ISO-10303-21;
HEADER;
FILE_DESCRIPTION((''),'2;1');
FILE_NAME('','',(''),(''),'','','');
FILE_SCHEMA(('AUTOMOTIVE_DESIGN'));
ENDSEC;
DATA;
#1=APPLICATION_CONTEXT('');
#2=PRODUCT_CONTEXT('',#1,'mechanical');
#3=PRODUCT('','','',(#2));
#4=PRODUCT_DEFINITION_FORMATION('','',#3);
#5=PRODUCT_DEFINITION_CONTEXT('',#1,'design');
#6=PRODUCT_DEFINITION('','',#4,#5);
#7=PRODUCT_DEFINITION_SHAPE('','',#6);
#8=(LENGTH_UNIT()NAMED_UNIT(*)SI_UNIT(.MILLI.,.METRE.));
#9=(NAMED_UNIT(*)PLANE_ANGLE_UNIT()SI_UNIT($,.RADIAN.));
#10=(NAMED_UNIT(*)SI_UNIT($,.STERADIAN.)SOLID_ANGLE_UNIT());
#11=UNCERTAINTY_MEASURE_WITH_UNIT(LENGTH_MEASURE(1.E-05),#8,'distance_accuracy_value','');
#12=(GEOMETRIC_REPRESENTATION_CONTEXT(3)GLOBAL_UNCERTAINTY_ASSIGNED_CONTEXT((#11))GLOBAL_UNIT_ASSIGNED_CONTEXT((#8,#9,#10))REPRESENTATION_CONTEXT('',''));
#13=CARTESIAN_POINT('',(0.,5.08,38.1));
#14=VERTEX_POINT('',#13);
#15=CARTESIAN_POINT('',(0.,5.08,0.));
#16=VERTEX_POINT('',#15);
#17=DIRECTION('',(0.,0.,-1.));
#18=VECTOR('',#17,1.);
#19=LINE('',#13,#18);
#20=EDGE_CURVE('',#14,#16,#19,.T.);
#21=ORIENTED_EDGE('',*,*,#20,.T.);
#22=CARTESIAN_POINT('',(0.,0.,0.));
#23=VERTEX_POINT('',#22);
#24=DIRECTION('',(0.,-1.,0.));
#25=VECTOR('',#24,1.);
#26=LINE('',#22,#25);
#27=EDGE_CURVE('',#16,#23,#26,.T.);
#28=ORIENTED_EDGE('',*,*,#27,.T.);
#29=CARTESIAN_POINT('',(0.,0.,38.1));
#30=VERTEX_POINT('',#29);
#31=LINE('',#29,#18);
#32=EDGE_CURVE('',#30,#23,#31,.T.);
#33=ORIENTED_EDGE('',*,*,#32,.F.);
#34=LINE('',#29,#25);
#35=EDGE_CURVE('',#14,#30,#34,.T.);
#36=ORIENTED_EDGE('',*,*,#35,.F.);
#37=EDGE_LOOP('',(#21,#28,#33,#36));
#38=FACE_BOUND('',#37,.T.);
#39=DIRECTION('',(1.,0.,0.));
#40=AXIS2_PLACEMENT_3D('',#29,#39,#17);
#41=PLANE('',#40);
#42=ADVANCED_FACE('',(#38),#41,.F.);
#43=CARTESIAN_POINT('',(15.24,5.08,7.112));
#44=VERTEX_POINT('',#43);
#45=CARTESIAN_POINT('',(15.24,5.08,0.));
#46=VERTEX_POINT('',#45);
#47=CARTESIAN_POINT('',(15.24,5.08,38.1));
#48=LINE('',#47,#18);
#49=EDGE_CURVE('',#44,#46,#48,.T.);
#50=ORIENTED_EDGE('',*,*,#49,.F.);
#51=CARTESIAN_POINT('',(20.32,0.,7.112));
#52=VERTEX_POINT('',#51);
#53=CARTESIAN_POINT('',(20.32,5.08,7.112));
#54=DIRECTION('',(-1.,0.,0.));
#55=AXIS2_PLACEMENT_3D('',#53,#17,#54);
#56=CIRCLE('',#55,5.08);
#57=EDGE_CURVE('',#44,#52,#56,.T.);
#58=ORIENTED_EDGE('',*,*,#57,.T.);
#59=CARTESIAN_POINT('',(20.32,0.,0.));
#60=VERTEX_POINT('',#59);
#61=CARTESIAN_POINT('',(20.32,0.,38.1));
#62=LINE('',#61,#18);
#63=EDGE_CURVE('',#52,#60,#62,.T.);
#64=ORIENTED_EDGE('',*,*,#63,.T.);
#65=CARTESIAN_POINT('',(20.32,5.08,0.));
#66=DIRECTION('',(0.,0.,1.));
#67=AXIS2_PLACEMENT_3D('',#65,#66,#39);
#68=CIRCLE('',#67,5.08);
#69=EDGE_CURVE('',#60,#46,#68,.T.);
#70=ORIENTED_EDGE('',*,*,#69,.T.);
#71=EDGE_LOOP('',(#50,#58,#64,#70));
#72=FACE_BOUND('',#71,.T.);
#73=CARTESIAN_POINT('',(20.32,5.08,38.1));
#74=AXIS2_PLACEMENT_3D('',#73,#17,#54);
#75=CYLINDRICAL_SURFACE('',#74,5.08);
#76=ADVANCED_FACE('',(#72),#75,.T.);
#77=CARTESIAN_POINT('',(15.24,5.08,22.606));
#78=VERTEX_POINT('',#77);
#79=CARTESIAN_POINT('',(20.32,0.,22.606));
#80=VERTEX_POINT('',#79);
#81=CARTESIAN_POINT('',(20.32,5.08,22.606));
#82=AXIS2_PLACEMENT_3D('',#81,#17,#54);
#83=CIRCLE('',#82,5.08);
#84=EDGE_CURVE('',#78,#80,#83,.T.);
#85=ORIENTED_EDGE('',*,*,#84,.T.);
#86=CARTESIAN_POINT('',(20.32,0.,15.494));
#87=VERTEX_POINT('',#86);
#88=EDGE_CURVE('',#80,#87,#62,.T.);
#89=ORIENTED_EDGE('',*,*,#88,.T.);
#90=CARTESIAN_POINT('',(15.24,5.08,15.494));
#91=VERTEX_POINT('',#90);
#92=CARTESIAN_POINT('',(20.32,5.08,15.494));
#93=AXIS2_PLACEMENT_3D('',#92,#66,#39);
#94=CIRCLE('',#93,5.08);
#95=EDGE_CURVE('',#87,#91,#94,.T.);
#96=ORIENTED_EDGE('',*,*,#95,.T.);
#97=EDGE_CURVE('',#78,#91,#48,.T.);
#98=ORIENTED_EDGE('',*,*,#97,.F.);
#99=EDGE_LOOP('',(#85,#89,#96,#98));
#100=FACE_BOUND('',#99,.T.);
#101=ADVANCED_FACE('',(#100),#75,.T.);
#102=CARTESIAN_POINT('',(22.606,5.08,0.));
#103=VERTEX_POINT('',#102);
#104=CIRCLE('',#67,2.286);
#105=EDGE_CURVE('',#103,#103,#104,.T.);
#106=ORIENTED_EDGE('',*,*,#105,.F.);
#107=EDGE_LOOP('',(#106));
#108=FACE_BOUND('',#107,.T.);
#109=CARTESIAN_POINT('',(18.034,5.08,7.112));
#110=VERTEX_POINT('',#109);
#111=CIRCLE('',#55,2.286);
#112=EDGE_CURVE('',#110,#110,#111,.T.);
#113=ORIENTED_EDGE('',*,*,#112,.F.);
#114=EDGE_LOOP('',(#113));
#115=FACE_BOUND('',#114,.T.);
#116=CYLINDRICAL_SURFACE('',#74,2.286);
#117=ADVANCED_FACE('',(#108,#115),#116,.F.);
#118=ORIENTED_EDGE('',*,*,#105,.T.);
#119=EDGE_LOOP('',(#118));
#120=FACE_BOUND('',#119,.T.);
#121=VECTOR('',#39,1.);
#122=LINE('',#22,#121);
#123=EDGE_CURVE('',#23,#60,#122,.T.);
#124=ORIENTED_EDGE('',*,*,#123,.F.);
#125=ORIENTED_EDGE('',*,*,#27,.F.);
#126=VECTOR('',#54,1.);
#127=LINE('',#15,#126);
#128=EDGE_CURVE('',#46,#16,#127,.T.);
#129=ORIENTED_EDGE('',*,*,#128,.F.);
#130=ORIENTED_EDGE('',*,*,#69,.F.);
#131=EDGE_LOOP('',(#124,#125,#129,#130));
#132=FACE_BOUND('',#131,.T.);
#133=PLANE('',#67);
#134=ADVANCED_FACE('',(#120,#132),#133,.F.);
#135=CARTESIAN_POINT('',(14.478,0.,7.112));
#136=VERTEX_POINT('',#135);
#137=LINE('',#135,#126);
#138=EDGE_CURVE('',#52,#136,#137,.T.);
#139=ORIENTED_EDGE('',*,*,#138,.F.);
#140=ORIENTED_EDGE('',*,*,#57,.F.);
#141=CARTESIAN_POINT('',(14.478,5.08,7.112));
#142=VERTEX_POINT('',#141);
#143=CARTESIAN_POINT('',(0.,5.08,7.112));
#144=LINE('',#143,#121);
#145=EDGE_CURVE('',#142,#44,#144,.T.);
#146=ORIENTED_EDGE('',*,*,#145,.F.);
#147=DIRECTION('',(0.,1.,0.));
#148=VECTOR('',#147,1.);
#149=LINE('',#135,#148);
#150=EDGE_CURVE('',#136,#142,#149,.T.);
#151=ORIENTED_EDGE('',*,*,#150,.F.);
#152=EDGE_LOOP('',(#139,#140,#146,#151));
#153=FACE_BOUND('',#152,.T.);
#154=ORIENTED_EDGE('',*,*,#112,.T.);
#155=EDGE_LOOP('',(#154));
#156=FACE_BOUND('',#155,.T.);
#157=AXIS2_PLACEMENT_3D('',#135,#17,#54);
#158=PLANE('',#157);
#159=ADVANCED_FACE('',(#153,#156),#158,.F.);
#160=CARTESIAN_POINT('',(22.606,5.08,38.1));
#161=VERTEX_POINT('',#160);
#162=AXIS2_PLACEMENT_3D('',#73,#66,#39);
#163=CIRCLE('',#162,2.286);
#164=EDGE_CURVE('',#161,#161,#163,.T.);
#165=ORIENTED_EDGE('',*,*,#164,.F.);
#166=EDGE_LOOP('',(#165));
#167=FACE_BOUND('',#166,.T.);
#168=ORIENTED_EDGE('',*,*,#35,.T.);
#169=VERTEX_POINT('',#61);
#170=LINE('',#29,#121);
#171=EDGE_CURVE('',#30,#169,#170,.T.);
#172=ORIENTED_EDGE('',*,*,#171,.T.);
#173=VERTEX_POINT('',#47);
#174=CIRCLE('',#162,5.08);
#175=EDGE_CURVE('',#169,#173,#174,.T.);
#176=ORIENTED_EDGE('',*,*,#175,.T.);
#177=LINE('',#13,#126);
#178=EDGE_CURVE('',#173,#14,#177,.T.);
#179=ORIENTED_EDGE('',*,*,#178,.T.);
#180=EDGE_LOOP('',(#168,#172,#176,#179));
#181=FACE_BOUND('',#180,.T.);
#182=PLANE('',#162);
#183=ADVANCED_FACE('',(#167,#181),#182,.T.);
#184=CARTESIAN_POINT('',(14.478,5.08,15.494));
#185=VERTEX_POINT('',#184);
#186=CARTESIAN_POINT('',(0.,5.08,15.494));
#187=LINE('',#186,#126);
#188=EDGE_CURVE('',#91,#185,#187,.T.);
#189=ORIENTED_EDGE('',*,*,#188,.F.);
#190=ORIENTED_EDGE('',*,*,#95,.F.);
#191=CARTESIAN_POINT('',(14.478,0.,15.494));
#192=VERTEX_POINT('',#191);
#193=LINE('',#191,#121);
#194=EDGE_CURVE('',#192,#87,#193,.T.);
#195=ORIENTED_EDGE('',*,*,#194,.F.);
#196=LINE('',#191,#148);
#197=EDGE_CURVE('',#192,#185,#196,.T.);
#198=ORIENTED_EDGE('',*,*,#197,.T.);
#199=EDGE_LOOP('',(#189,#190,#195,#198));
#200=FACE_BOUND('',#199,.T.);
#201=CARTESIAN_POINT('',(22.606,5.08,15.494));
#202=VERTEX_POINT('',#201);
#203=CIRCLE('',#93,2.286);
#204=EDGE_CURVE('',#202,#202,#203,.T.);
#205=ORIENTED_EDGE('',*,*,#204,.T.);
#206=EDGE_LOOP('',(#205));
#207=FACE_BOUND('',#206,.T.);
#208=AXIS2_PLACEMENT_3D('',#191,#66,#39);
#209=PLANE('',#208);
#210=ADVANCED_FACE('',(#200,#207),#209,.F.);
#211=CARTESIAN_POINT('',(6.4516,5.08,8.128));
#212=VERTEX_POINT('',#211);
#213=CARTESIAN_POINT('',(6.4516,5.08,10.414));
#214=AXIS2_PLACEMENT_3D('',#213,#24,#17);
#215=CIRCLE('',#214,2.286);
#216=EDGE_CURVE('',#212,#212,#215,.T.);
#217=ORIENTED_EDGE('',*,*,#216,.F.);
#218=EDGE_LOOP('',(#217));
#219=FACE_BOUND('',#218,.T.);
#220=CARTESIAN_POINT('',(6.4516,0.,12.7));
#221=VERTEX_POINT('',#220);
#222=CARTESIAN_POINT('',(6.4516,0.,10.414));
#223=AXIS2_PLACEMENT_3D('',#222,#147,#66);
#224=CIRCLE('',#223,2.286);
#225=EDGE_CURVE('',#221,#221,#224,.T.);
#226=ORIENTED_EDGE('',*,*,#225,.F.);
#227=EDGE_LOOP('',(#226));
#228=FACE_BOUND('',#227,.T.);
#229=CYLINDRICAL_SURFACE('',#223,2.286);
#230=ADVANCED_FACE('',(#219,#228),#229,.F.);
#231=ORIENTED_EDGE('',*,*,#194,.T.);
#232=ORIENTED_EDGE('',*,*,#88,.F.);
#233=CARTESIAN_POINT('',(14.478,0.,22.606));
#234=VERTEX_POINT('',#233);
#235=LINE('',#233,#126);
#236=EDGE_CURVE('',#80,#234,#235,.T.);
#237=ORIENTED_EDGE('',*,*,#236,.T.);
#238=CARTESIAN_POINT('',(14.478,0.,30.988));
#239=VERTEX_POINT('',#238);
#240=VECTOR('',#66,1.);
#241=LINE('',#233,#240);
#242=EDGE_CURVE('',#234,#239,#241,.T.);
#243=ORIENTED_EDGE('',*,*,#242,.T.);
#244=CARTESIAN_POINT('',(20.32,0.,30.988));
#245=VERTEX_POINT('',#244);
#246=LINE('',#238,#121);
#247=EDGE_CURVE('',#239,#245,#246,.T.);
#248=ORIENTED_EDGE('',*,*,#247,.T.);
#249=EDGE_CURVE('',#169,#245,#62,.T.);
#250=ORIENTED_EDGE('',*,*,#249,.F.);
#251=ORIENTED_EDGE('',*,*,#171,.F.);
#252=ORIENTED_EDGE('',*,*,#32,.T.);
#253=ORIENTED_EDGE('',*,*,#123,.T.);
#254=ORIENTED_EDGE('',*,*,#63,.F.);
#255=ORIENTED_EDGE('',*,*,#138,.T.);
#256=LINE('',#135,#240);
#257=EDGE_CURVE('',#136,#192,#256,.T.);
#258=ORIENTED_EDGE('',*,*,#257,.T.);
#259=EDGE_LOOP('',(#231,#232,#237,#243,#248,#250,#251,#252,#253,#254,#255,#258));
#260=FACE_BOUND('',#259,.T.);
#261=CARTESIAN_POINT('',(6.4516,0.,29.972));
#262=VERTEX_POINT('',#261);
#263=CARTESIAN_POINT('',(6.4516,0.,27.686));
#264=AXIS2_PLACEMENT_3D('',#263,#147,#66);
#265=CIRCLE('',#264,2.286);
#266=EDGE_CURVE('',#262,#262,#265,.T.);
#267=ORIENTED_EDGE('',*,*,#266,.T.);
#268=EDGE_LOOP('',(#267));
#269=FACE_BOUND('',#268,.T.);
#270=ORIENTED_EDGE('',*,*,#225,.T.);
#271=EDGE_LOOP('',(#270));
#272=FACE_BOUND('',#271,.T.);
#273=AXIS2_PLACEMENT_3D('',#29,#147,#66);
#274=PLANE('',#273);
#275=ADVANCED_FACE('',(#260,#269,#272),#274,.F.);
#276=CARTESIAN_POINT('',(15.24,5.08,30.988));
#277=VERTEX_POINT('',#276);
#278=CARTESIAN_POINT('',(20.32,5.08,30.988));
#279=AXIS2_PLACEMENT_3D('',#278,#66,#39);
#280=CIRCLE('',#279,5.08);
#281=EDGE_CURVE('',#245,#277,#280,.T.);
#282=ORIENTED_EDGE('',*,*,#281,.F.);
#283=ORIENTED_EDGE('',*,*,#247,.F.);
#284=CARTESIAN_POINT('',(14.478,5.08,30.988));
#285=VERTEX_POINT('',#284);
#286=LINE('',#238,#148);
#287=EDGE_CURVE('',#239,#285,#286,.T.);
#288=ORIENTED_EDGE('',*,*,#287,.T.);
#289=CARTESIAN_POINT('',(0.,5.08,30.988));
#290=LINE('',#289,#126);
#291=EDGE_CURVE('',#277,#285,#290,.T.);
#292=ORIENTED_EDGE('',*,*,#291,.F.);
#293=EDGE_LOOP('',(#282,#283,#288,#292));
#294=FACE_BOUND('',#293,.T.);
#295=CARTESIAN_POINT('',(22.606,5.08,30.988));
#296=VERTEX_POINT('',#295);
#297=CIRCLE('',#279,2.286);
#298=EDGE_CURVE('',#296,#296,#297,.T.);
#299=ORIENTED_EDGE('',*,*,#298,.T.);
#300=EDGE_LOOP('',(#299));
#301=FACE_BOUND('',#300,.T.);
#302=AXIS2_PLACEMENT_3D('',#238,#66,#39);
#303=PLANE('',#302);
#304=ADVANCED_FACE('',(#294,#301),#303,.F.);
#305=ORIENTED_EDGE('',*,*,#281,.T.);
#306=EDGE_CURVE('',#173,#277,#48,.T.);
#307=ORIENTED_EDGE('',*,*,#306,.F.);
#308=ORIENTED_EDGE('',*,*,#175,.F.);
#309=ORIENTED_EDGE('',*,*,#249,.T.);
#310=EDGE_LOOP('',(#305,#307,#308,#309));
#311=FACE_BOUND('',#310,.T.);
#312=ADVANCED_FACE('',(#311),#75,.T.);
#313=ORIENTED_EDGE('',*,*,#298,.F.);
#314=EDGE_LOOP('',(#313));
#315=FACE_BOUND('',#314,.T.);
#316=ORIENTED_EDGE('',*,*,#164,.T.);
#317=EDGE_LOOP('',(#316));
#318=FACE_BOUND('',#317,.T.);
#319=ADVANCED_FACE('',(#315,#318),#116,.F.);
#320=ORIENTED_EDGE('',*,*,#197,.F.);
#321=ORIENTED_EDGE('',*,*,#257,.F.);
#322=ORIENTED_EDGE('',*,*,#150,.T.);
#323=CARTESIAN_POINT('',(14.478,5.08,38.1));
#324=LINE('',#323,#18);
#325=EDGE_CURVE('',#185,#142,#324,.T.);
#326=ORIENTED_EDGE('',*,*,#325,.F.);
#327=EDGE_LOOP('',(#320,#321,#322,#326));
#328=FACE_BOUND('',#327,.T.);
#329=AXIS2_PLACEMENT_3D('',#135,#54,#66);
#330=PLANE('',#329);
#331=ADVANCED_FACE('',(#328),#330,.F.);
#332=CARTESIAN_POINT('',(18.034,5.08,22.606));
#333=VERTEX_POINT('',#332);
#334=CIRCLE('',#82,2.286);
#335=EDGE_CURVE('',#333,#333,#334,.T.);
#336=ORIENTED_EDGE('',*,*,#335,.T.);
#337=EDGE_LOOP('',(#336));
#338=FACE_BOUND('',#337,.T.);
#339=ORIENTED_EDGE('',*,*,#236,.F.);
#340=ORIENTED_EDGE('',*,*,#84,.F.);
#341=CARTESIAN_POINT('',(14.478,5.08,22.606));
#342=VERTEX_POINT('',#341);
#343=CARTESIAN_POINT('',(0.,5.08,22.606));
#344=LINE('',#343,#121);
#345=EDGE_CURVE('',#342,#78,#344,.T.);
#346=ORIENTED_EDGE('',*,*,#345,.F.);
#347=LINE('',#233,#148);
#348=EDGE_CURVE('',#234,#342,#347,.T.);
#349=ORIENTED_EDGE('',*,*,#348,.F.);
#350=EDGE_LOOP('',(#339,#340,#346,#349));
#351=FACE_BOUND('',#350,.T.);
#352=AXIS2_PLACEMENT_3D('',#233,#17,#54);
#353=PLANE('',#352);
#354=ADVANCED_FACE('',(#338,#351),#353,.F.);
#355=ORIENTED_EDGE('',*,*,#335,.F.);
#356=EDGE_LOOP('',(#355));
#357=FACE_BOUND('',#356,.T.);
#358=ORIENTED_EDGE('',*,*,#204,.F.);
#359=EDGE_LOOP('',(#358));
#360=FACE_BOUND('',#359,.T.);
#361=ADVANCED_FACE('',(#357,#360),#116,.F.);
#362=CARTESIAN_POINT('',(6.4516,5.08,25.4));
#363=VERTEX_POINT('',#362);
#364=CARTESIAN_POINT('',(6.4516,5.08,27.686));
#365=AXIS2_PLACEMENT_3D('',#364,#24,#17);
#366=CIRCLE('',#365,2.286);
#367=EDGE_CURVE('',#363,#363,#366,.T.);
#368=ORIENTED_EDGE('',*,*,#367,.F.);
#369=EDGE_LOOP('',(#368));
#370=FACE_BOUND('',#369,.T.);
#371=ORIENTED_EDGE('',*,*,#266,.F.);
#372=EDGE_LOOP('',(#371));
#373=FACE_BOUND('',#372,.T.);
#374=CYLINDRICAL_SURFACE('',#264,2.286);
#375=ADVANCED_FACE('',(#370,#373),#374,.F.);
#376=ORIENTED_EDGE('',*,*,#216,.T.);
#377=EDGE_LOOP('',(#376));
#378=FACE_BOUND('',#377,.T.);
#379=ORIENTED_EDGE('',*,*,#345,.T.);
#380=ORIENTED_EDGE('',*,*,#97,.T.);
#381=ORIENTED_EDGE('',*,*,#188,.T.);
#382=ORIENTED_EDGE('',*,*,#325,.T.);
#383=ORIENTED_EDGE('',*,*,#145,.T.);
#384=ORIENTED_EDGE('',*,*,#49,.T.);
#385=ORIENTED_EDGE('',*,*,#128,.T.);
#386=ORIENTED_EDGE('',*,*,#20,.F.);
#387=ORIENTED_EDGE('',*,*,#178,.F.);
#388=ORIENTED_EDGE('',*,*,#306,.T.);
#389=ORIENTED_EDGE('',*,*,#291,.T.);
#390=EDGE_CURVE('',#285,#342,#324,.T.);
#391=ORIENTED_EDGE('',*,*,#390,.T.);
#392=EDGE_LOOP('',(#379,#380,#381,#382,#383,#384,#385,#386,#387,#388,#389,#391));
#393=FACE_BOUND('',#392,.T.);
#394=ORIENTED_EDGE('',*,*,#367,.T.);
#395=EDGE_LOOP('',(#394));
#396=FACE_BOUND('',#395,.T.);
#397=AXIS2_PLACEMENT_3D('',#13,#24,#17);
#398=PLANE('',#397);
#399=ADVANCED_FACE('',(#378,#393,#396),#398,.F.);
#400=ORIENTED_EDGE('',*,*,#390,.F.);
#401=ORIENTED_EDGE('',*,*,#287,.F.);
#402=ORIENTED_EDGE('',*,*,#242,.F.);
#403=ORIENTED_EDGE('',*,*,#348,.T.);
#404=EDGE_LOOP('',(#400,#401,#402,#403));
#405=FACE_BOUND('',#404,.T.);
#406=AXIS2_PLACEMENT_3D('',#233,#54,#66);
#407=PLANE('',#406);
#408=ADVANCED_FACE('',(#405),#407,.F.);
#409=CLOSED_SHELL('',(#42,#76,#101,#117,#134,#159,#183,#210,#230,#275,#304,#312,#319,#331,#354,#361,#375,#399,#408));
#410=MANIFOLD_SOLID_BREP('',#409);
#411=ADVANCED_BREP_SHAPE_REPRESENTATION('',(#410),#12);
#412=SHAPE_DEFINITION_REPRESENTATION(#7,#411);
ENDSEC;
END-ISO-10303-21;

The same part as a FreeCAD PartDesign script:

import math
import FreeCAD as App
import Part
import Sketcher
from FreeCAD import Vector
Q = App.Units.Quantity

doc = App.newDocument("Part")
body = doc.addObject("PartDesign::Body", "Body")

# Sketch on XY plane
sketch1 = doc.addObject("Sketcher::SketchObject", "Sketch")
body.addObject(sketch1)
sketch1.AttachmentSupport = (doc.XY_Plane, [""])
sketch1.MapMode = "FlatFace"
sketch1.addGeometry(Part.LineSegment(Vector(15.24, 5.08, 0), Vector(0, 5.08, 0)), False)
sketch1.addGeometry(Part.LineSegment(Vector(0, 5.08, 0), Vector(0, 0, 0)), False)
sketch1.addGeometry(Part.LineSegment(Vector(0, 0, 0), Vector(20.32, 0, 0)), False)
sketch1.addGeometry(Part.ArcOfCircle(Part.Circle(Vector(20.32, 5.08, 0), Vector(0, 0, 1), 5.08), math.radians(-90), math.radians(180)), False)
sketch1.addGeometry(Part.Circle(Vector(20.32, 5.08, 0), Vector(0, 0, 1), 2.286), False)
sketch1.addConstraint(Sketcher.Constraint("Coincident", 0, 2, 1, 1))
sketch1.addConstraint(Sketcher.Constraint("Coincident", 1, 2, 2, 1))
sketch1.addConstraint(Sketcher.Constraint("Tangent", 2, 2, 3, 1))
sketch1.addConstraint(Sketcher.Constraint("Coincident", 3, 2, 0, 1))
sketch1.addConstraint(Sketcher.Constraint("Horizontal", 0))
sketch1.addConstraint(Sketcher.Constraint("Vertical", 1))
sketch1.addConstraint(Sketcher.Constraint("Horizontal", 2))
sketch1.addConstraint(Sketcher.Constraint("Coincident", 1, 2, -1, 1))
sketch1.addConstraint(Sketcher.Constraint("Coincident", 4, 3, 3, 3))
sketch1.addConstraint(Sketcher.Constraint("Horizontal", 4, 3, 0, 2))
sketch1.addConstraint(Sketcher.Constraint("Radius", 3, Q("0.2 in")))
sketch1.addConstraint(Sketcher.Constraint("Diameter", 4, Q("0.18 in")))
sketch1.addConstraint(Sketcher.Constraint("DistanceX", 0, 2, 0, 1, Q("0.6 in")))
pad1 = doc.addObject("PartDesign::Pad", "Pad")
body.addObject(pad1)
pad1.Profile = sketch1
pad1.Length = Q("1.5 in")

# Sketch on XZ plane
sketch2 = doc.addObject("Sketcher::SketchObject", "Sketch001")
body.addObject(sketch2)
sketch2.AttachmentSupport = (doc.XZ_Plane, [""])
sketch2.MapMode = "FlatFace"
sketch2.AttachmentOffset = App.Placement(Vector(0, 0, -0.2 * 25.4), App.Rotation())
sketch2.addGeometry(Part.LineSegment(Vector(14.478, 7.112, 0), Vector(14.478, 15.494, 0)), False)
sketch2.addGeometry(Part.LineSegment(Vector(14.478, 15.494, 0), Vector(25.4, 15.494, 0)), False)
sketch2.addGeometry(Part.LineSegment(Vector(25.4, 15.494, 0), Vector(25.4, 7.112, 0)), False)
sketch2.addGeometry(Part.LineSegment(Vector(25.4, 7.112, 0), Vector(14.478, 7.112, 0)), False)
sketch2.addGeometry(Part.LineSegment(Vector(14.478, 22.606, 0), Vector(14.478, 30.988, 0)), False)
sketch2.addGeometry(Part.LineSegment(Vector(14.478, 30.988, 0), Vector(25.4, 30.988, 0)), False)
sketch2.addGeometry(Part.LineSegment(Vector(25.4, 30.988, 0), Vector(25.4, 22.606, 0)), False)
sketch2.addGeometry(Part.LineSegment(Vector(25.4, 22.606, 0), Vector(14.478, 22.606, 0)), False)
sketch2.addConstraint(Sketcher.Constraint("Coincident", 0, 2, 1, 1))
sketch2.addConstraint(Sketcher.Constraint("Coincident", 1, 2, 2, 1))
sketch2.addConstraint(Sketcher.Constraint("Coincident", 2, 2, 3, 1))
sketch2.addConstraint(Sketcher.Constraint("Coincident", 3, 2, 0, 1))
sketch2.addConstraint(Sketcher.Constraint("Coincident", 4, 2, 5, 1))
sketch2.addConstraint(Sketcher.Constraint("Coincident", 5, 2, 6, 1))
sketch2.addConstraint(Sketcher.Constraint("Coincident", 6, 2, 7, 1))
sketch2.addConstraint(Sketcher.Constraint("Coincident", 7, 2, 4, 1))
sketch2.addConstraint(Sketcher.Constraint("Vertical", 0))
sketch2.addConstraint(Sketcher.Constraint("Horizontal", 1))
sketch2.addConstraint(Sketcher.Constraint("Vertical", 2))
sketch2.addConstraint(Sketcher.Constraint("Horizontal", 3))
sketch2.addConstraint(Sketcher.Constraint("Vertical", 4))
sketch2.addConstraint(Sketcher.Constraint("Horizontal", 5))
sketch2.addConstraint(Sketcher.Constraint("Vertical", 6))
sketch2.addConstraint(Sketcher.Constraint("Horizontal", 7))
sketch2.addConstraint(Sketcher.Constraint("Vertical", 3, 2, 4, 2))
sketch2.addConstraint(Sketcher.Constraint("Vertical", 2, 2, 5, 2))
sketch2.addConstraint(Sketcher.Constraint("Equal", 2, 4))
sketch2.addConstraint(Sketcher.Constraint("DistanceX", -1, 1, 1, 2, Q("1 in")))
sketch2.addConstraint(Sketcher.Constraint("DistanceX", 1, 1, 1, 2, Q("0.43 in")))
sketch2.addConstraint(Sketcher.Constraint("DistanceY", 0, 1, 0, 2, Q("0.33 in")))
sketch2.addConstraint(Sketcher.Constraint("DistanceY", -1, 1, 0, 2, Q("0.61 in")))
sketch2.addConstraint(Sketcher.Constraint("DistanceY", -1, 1, 4, 2, Q("1.22 in")))
pocket1 = doc.addObject("PartDesign::Pocket", "Pocket")
body.addObject(pocket1)
pocket1.Profile = sketch2
pocket1.Type = "ThroughAll"
pocket1.Midplane = True

# Sketch on XZ plane
sketch3 = doc.addObject("Sketcher::SketchObject", "Sketch002")
body.addObject(sketch3)
sketch3.AttachmentSupport = (doc.XZ_Plane, [""])
sketch3.MapMode = "FlatFace"
sketch3.AttachmentOffset = App.Placement(Vector(0, 0, -0.2 * 25.4), App.Rotation())
sketch3.addGeometry(Part.Circle(Vector(6.4516, 10.414, 0), Vector(0, 0, 1), 2.286), False)
sketch3.addGeometry(Part.Circle(Vector(6.4516, 27.686, 0), Vector(0, 0, 1), 2.286), False)
sketch3.addConstraint(Sketcher.Constraint("Equal", 0, 1))
sketch3.addConstraint(Sketcher.Constraint("Vertical", 0, 3, 1, 3))
sketch3.addConstraint(Sketcher.Constraint("Diameter", 0, Q("0.18 in")))
sketch3.addConstraint(Sketcher.Constraint("DistanceY", -1, 1, 0, 3, Q("0.41 in")))
sketch3.addConstraint(Sketcher.Constraint("DistanceY", -1, 1, 1, 3, Q("1.09 in")))
sketch3.addConstraint(Sketcher.Constraint("DistanceX", -1, 1, 0, 3, Q("0.254 in")))
pocket2 = doc.addObject("PartDesign::Pocket", "Pocket001")
body.addObject(pocket2)
pocket2.Profile = sketch3
pocket2.Type = "ThroughAll"
pocket2.Midplane = True

doc.recompute()
